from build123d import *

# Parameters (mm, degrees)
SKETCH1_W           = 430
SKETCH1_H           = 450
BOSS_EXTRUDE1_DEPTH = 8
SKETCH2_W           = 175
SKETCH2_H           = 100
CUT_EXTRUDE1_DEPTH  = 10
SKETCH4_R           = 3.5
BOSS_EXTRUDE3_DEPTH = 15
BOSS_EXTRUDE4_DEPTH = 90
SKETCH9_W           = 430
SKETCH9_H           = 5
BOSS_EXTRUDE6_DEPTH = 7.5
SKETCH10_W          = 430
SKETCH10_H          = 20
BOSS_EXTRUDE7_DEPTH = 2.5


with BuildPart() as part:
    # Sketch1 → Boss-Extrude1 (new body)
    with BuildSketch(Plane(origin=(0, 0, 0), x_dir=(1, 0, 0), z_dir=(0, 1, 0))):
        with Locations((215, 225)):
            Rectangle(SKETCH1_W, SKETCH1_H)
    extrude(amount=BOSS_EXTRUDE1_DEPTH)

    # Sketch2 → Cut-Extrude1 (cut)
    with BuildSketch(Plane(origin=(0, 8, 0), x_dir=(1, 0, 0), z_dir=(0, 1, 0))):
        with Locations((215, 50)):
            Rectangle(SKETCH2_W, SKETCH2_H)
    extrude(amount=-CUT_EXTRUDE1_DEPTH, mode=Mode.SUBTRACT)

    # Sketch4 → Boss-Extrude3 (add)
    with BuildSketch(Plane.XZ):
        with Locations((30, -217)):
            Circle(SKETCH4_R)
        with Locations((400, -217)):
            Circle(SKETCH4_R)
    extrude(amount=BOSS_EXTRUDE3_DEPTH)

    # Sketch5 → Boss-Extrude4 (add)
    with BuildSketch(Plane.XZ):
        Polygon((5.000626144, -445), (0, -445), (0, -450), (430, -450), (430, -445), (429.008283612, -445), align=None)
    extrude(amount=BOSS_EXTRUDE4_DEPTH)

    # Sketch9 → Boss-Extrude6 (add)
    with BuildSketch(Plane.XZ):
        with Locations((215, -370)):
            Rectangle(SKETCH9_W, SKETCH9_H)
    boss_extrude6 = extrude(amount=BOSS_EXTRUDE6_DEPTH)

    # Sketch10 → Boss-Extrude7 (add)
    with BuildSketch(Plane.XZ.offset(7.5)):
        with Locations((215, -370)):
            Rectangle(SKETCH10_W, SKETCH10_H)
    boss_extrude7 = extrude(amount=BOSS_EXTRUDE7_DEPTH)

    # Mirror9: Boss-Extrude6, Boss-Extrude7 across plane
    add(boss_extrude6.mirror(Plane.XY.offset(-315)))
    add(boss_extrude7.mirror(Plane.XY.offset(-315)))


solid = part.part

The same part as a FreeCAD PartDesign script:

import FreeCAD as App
import Part
import Sketcher
Q = App.Units.Quantity


def add_polygon(sketch, points):
    """Adds a closed chain of lines whose ends are joined by coincident constraints."""
    first, n = sketch.GeometryCount, len(points)
    for a, b in zip(points, points[1:] + points[:1]):
        sketch.addGeometry(Part.LineSegment(App.Vector(*a, 0), App.Vector(*b, 0)), False)
    for i in range(n):
        sketch.addConstraint(Sketcher.Constraint("Coincident", first + i, 2, first + (i + 1) % n, 1))

doc = App.newDocument("Part")
body = doc.addObject("PartDesign::Body", "Body")

# Sketch on XZ plane
sketch1 = doc.addObject("Sketcher::SketchObject", "Sketch")
body.addObject(sketch1)
sketch1.AttachmentSupport = (doc.XZ_Plane, [""])
sketch1.MapMode = "FlatFace"
add_polygon(sketch1, [(0, -450), (0, 0), (430, 0), (430, -450)])  # lines 0-3
sketch1.addConstraint(Sketcher.Constraint("Vertical", 0))
sketch1.addConstraint(Sketcher.Constraint("Horizontal", 1))
sketch1.addConstraint(Sketcher.Constraint("Vertical", 2))
sketch1.addConstraint(Sketcher.Constraint("Horizontal", 3))
sketch1.addConstraint(Sketcher.Constraint("Coincident", 0, 2, -1, 1))
sketch1.addConstraint(Sketcher.Constraint("DistanceX", 1, 1, 1, 2, Q("430 mm")))
sketch1.addConstraint(Sketcher.Constraint("DistanceY", 0, 1, 0, 2, Q("450 mm")))
pad1 = doc.addObject("PartDesign::Pad", "Pad")
body.addObject(pad1)
pad1.Profile = sketch1
pad1.Length = 8
pad1.Reversed = True

# Sketch on XZ plane
sketch2 = doc.addObject("Sketcher::SketchObject", "Sketch001")
body.addObject(sketch2)
sketch2.AttachmentSupport = (doc.XZ_Plane, [""])
sketch2.MapMode = "FlatFace"
sketch2.AttachmentOffset = App.Placement(App.Vector(0, 0, -8), App.Rotation())
add_polygon(sketch2, [(128, -100), (128, 0), (302, 0), (302, -100)])  # lines 0-3
sketch2.addConstraint(Sketcher.Constraint("Vertical", 0))
sketch2.addConstraint(Sketcher.Constraint("Horizontal", 1))
sketch2.addConstraint(Sketcher.Constraint("Vertical", 2))
sketch2.addConstraint(Sketcher.Constraint("Horizontal", 3))
sketch2.addConstraint(Sketcher.Constraint("PointOnObject", 0, 2, -1))
sketch2.addConstraint(Sketcher.Constraint("DistanceX", 1, 1, 1, 2, Q("175 mm")))
sketch2.addConstraint(Sketcher.Constraint("DistanceY", 0, 1, 0, 2, Q("100 mm")))
sketch2.addConstraint(Sketcher.Constraint("DistanceX", -1, 1, 0, 2, Q("127.5 mm")))
pocket1 = doc.addObject("PartDesign::Pocket", "Pocket")
body.addObject(pocket1)
pocket1.Profile = sketch2
pocket1.Length = 10
pocket1.Reversed = True

# Sketch on XZ plane
sketch3 = doc.addObject("Sketcher::SketchObject", "Sketch002")
body.addObject(sketch3)
sketch3.AttachmentSupport = (doc.XZ_Plane, [""])
sketch3.MapMode = "FlatFace"
sketch3.addGeometry(Part.Circle(App.Vector(30, -217, 0), App.Vector(0, 0, 1), 3.5), False)
sketch3.addGeometry(Part.Circle(App.Vector(400, -217, 0), App.Vector(0, 0, 1), 3.5), False)
sketch3.addConstraint(Sketcher.Constraint("Equal", 0, 1))
sketch3.addConstraint(Sketcher.Constraint("Horizontal", 0, 3, 1, 3))
sketch3.addConstraint(Sketcher.Constraint("Diameter", 0, Q("7 mm")))
sketch3.addConstraint(Sketcher.Constraint("DistanceX", -1, 1, 0, 3, Q("30 mm")))
sketch3.addConstraint(Sketcher.Constraint("DistanceY", 0, 3, -1, 1, Q("217 mm")))
sketch3.addConstraint(Sketcher.Constraint("DistanceX", -1, 1, 1, 3, Q("400 mm")))
pad2 = doc.addObject("PartDesign::Pad", "Pad001")
body.addObject(pad2)
pad2.Profile = sketch3
pad2.Length = 15

# Sketch on XZ plane
sketch4 = doc.addObject("Sketcher::SketchObject", "Sketch003")
body.addObject(sketch4)
sketch4.AttachmentSupport = (doc.XZ_Plane, [""])
sketch4.MapMode = "FlatFace"
add_polygon(sketch4, [(0, -445), (0, -450), (430, -450), (430, -445)])  # lines 0-3
sketch4.addConstraint(Sketcher.Constraint("Vertical", 0))
sketch4.addConstraint(Sketcher.Constraint("Horizontal", 1))
sketch4.addConstraint(Sketcher.Constraint("Vertical", 2))
sketch4.addConstraint(Sketcher.Constraint("Horizontal", 3))
sketch4.addConstraint(Sketcher.Constraint("PointOnObject", 0, 2, -2))
sketch4.addConstraint(Sketcher.Constraint("DistanceX", 1, 1, 1, 2, Q("430 mm")))
sketch4.addConstraint(Sketcher.Constraint("DistanceY", 0, 2, 0, 1, Q("5 mm")))
sketch4.addConstraint(Sketcher.Constraint("DistanceY", 0, 2, -1, 1, Q("450 mm")))
pad3 = doc.addObject("PartDesign::Pad", "Pad002")
body.addObject(pad3)
pad3.Profile = sketch4
pad3.Length = 90

# Sketch on XZ plane
sketch5 = doc.addObject("Sketcher::SketchObject", "Sketch004")
body.addObject(sketch5)
sketch5.AttachmentSupport = (doc.XZ_Plane, [""])
sketch5.MapMode = "FlatFace"
add_polygon(sketch5, [(0, -368), (0, -372), (430, -372), (430, -368)])  # lines 0-3
sketch5.addConstraint(Sketcher.Constraint("Vertical", 0))
sketch5.addConstraint(Sketcher.Constraint("Horizontal", 1))
sketch5.addConstraint(Sketcher.Constraint("Vertical", 2))
sketch5.addConstraint(Sketcher.Constraint("Horizontal", 3))
sketch5.addConstraint(Sketcher.Constraint("PointOnObject", 0, 2, -2))
sketch5.addConstraint(Sketcher.Constraint("DistanceX", 1, 1, 1, 2, Q("430 mm")))
sketch5.addConstraint(Sketcher.Constraint("DistanceY", 0, 2, 0, 1, Q("5 mm")))
sketch5.addConstraint(Sketcher.Constraint("DistanceY", 0, 2, -1, 1, Q("372.5 mm")))
pad4 = doc.addObject("PartDesign::Pad", "Pad003")
body.addObject(pad4)
pad4.Profile = sketch5
pad4.Length = 7.5

# Sketch on XZ plane
sketch6 = doc.addObject("Sketcher::SketchObject", "Sketch005")
body.addObject(sketch6)
sketch6.AttachmentSupport = (doc.XZ_Plane, [""])
sketch6.MapMode = "FlatFace"
sketch6.AttachmentOffset = App.Placement(App.Vector(0, 0, 7.5), App.Rotation())
add_polygon(sketch6, [(0, -360), (0, -380), (430, -380), (430, -360)])  # lines 0-3
sketch6.addConstraint(Sketcher.Constraint("Vertical", 0))
sketch6.addConstraint(Sketcher.Constraint("Horizontal", 1))
sketch6.addConstraint(Sketcher.Constraint("Vertical", 2))
sketch6.addConstraint(Sketcher.Constraint("Horizontal", 3))
sketch6.addConstraint(Sketcher.Constraint("PointOnObject", 0, 2, -2))
sketch6.addConstraint(Sketcher.Constraint("DistanceX", 1, 1, 1, 2, Q("430 mm")))
sketch6.addConstraint(Sketcher.Constraint("DistanceY", 0, 2, 0, 1, Q("20 mm")))
sketch6.addConstraint(Sketcher.Constraint("DistanceY", 0, 2, -1, 1, Q("380 mm")))
pad5 = doc.addObject("PartDesign::Pad", "Pad004")
body.addObject(pad5)
pad5.Profile = sketch6
pad5.Length = 2.5
doc.recompute()

datumplane = doc.addObject("PartDesign::Plane", "DatumPlane")
body.addObject(datumplane)
datumplane.AttachmentSupport = (doc.XY_Plane, [""])
datumplane.MapMode = "FlatFace"
datumplane.AttachmentOffset = App.Placement(App.Vector(0, 0, -315), App.Rotation())
mirrored = doc.addObject("PartDesign::Mirrored", "Mirrored")
body.addObject(mirrored)
mirrored.Originals = [pad4, pad5]
mirrored.MirrorPlane = (datumplane, [""])
body.Tip = mirrored

doc.recompute()
